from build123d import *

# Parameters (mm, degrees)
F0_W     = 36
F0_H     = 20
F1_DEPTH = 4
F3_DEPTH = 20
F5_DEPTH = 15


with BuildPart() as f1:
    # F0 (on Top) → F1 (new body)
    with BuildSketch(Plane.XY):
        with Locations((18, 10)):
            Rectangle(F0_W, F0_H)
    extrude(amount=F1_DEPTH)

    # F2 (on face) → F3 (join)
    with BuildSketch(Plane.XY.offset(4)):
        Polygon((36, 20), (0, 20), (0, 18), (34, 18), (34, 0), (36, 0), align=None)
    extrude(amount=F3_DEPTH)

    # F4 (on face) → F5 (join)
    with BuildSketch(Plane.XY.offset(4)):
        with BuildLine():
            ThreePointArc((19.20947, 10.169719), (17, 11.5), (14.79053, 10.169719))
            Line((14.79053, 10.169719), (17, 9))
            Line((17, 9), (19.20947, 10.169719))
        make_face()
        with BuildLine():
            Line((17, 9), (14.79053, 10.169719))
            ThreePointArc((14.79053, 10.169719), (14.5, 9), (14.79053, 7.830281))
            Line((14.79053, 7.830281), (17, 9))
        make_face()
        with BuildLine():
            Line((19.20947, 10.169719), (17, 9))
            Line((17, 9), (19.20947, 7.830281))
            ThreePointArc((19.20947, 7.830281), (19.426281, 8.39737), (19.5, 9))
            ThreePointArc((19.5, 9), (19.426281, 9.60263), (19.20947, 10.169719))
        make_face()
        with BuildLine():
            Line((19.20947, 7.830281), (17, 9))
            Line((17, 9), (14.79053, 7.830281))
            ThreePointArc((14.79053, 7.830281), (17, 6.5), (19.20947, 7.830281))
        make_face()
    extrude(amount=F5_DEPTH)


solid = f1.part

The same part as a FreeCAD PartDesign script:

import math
import FreeCAD as App
import Part
import Sketcher
from FreeCAD import Vector
Q = App.Units.Quantity


def add_polygon(sketch, points):
    """Adds a closed chain of lines whose ends are joined by coincident constraints."""
    first, n = sketch.GeometryCount, len(points)
    for a, b in zip(points, points[1:] + points[:1]):
        sketch.addGeometry(Part.LineSegment(App.Vector(*a, 0), App.Vector(*b, 0)), False)
    for i in range(n):
        sketch.addConstraint(Sketcher.Constraint("Coincident", first + i, 2, first + (i + 1) % n, 1))

doc = App.newDocument("Part")
body = doc.addObject("PartDesign::Body", "Body")

# Sketch on XY plane
sketch1 = doc.addObject("Sketcher::SketchObject", "Sketch")
body.addObject(sketch1)
sketch1.AttachmentSupport = (doc.XY_Plane, [""])
sketch1.MapMode = "FlatFace"
add_polygon(sketch1, [(0, 20), (0, 0), (36, 0), (36, 20)])  # lines 0-3
sketch1.addConstraint(Sketcher.Constraint("Vertical", 0))
sketch1.addConstraint(Sketcher.Constraint("Horizontal", 1))
sketch1.addConstraint(Sketcher.Constraint("Vertical", 2))
sketch1.addConstraint(Sketcher.Constraint("Horizontal", 3))
sketch1.addConstraint(Sketcher.Constraint("Coincident", 0, 2, -1, 1))
sketch1.addConstraint(Sketcher.Constraint("DistanceX", 1, 1, 1, 2, Q("36 mm")))
sketch1.addConstraint(Sketcher.Constraint("DistanceY", 0, 2, 0, 1, Q("20 mm")))
pad1 = doc.addObject("PartDesign::Pad", "Pad")
body.addObject(pad1)
pad1.Profile = sketch1
pad1.Length = 4

# Sketch on XY plane
sketch2 = doc.addObject("Sketcher::SketchObject", "Sketch001")
body.addObject(sketch2)
sketch2.AttachmentSupport = (doc.XY_Plane, [""])
sketch2.MapMode = "FlatFace"
sketch2.AttachmentOffset = App.Placement(Vector(0, 0, 4), App.Rotation())
add_polygon(sketch2, [(36, 20), (0, 20), (0, 18), (34, 18), (34, 0), (36, 0)])  # lines 0-5
sketch2.addConstraint(Sketcher.Constraint("Horizontal", 0))
sketch2.addConstraint(Sketcher.Constraint("Vertical", 1))
sketch2.addConstraint(Sketcher.Constraint("Horizontal", 2))
sketch2.addConstraint(Sketcher.Constraint("Vertical", 3))
sketch2.addConstraint(Sketcher.Constraint("Horizontal", 4))
sketch2.addConstraint(Sketcher.Constraint("Vertical", 5))
sketch2.addConstraint(Sketcher.Constraint("PointOnObject", 0, 2, -2))
sketch2.addConstraint(Sketcher.Constraint("PointOnObject", 3, 2, -1))
sketch2.addConstraint(Sketcher.Constraint("Equal", 4, 1))
sketch2.addConstraint(Sketcher.Constraint("DistanceX", 0, 2, 0, 1, Q("36 mm")))
sketch2.addConstraint(Sketcher.Constraint("DistanceX", 2, 1, 2, 2, Q("34 mm")))
sketch2.addConstraint(Sketcher.Constraint("DistanceY", 3, 2, 3, 1, Q("18 mm")))
pad2 = doc.addObject("PartDesign::Pad", "Pad001")
body.addObject(pad2)
pad2.Profile = sketch2
pad2.Length = 20

# Sketch on XY plane
sketch3 = doc.addObject("Sketcher::SketchObject", "Sketch002")
body.addObject(sketch3)
sketch3.AttachmentSupport = (doc.XY_Plane, [""])
sketch3.MapMode = "FlatFace"
sketch3.AttachmentOffset = App.Placement(Vector(0, 0, 4), App.Rotation())
sketch3.addGeometry(Part.ArcOfCircle(Part.Circle(Vector(17, 9, 0), Vector(0, 0, 1), 2.5), math.radians(28), math.radians(152)), False)
sketch3.addGeometry(Part.ArcOfCircle(Part.Circle(Vector(17, 9, 0), Vector(0, 0, 1), 2.5), math.radians(152), math.radians(208)), False)
sketch3.addGeometry(Part.ArcOfCircle(Part.Circle(Vector(17, 9, 0), Vector(0, 0, 1), 2.5), math.radians(-152), math.radians(-28)), False)
sketch3.addGeometry(Part.ArcOfCircle(Part.Circle(Vector(17, 9, 0), Vector(0, 0, 1), 2.5), math.radians(-28), math.radians(0)), False)
sketch3.addGeometry(Part.ArcOfCircle(Part.Circle(Vector(17, 9, 0), Vector(0, 0, 1), 2.5), math.radians(0), math.radians(28)), False)
sketch3.addConstraint(Sketcher.Constraint("Tangent", 0, 2, 1, 1))
sketch3.addConstraint(Sketcher.Constraint("Tangent", 1, 2, 2, 1))
sketch3.addConstraint(Sketcher.Constraint("Tangent", 2, 2, 3, 1))
sketch3.addConstraint(Sketcher.Constraint("Coincident", 3, 2, 4, 1))
sketch3.addConstraint(Sketcher.Constraint("Tangent", 4, 2, 0, 1))
sketch3.addConstraint(Sketcher.Constraint("Coincident", 2, 3, 0, 3))
sketch3.addConstraint(Sketcher.Constraint("Horizontal", 1, 2, 2, 2))
sketch3.addConstraint(Sketcher.Constraint("Horizontal", 2, 3, 3, 2))
sketch3.addConstraint(Sketcher.Constraint("Horizontal", 0, 2, 4, 2))
sketch3.addConstraint(Sketcher.Constraint("Vertical", 0, 2, 1, 2))
sketch3.addConstraint(Sketcher.Constraint("Radius", 0, Q("2.5 mm")))
sketch3.addConstraint(Sketcher.Constraint("DistanceX", -1, 1, 0, 3, Q("17 mm")))
sketch3.addConstraint(Sketcher.Constraint("DistanceY", -1, 1, 0, 3, Q("9 mm")))
sketch3.addConstraint(Sketcher.Constraint("DistanceX", -1, 1, 3, 2, Q("19.5 mm")))
sketch3.addConstraint(Sketcher.Constraint("DistanceX", -1, 1, 0, 2, Q("14.79053 mm")))
pad3 = doc.addObject("PartDesign::Pad", "Pad002")
body.addObject(pad3)
pad3.Profile = sketch3
pad3.Length = 15

doc.recompute()
